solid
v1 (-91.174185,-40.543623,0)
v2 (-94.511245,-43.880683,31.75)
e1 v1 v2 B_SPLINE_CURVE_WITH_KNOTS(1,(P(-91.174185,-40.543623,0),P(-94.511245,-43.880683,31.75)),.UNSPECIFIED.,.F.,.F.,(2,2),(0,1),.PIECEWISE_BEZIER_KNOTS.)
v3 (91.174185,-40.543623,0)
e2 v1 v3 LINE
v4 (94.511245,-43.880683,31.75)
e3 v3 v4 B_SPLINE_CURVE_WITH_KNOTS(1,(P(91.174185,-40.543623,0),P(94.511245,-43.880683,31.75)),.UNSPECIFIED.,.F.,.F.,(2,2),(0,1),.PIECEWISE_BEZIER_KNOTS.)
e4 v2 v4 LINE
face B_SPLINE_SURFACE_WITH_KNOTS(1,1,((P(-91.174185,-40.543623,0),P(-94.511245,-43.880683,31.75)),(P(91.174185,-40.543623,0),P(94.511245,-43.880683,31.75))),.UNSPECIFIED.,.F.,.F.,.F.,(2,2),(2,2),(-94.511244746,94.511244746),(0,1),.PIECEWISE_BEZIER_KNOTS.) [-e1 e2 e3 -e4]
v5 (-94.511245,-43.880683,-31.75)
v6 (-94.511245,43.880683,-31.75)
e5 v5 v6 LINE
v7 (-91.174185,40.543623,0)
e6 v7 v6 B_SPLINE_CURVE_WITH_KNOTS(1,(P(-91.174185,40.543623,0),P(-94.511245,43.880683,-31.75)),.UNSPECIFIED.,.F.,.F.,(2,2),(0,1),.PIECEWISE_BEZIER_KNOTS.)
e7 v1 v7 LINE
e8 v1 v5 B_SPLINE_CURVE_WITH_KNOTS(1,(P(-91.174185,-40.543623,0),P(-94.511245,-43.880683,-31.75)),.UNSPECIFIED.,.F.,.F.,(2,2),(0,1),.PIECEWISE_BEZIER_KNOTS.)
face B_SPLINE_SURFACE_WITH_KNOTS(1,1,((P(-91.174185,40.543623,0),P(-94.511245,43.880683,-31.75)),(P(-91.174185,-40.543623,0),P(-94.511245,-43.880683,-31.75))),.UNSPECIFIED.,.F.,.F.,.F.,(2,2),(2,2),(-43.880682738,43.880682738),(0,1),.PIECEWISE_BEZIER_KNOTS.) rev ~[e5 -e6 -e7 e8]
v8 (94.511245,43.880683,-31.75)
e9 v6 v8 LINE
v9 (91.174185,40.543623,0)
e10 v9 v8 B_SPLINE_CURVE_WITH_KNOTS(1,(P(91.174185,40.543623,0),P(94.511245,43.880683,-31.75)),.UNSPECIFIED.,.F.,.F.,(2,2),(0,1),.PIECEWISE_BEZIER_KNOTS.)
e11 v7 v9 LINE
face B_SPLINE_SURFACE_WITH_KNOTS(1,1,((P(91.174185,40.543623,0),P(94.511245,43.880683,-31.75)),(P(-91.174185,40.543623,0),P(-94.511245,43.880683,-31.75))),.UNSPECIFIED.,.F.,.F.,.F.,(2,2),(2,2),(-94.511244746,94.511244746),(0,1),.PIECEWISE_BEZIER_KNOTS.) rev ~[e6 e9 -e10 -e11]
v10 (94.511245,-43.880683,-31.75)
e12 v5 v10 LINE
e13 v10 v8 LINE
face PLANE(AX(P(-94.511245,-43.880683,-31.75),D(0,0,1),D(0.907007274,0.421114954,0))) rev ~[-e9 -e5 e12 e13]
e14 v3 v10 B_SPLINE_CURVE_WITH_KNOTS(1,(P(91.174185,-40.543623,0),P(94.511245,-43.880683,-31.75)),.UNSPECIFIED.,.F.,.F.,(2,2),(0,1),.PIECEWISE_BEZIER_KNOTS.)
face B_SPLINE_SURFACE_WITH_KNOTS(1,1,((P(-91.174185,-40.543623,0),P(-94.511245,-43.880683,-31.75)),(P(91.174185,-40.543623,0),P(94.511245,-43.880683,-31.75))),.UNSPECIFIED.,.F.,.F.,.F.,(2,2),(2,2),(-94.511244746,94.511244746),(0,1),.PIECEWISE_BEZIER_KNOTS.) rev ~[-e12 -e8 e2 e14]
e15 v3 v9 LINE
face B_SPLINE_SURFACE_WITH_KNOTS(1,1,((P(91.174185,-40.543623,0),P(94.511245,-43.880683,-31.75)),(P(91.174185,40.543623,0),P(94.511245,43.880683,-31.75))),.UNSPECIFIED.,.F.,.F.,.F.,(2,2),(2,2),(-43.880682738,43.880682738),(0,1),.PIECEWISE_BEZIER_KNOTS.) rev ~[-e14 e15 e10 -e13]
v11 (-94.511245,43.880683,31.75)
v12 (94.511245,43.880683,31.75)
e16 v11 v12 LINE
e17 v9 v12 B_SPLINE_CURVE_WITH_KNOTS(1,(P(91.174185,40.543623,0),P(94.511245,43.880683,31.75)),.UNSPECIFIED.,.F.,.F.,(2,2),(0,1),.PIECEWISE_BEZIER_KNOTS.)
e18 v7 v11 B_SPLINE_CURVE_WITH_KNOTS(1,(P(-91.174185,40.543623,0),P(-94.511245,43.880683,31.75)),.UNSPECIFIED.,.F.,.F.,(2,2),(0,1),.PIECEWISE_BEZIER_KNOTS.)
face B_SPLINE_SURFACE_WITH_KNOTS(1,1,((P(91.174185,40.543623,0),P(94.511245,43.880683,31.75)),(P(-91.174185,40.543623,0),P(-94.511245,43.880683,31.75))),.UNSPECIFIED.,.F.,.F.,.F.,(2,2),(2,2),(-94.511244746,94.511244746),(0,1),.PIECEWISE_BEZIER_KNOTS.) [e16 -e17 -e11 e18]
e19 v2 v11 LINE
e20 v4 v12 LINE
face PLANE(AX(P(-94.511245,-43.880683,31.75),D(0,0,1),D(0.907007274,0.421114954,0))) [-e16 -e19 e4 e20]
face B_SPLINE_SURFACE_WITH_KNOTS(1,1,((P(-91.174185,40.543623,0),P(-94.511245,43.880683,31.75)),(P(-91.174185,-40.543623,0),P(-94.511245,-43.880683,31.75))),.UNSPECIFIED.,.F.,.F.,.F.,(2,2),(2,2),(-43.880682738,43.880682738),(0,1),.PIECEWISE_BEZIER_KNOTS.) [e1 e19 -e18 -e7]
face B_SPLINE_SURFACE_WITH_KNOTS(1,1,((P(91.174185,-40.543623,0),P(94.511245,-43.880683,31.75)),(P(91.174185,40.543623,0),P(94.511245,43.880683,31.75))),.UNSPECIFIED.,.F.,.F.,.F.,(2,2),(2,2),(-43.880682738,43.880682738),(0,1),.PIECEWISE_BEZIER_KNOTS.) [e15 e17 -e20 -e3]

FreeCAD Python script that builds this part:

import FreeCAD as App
import Part
import Sketcher

V = App.Vector
Q = App.Units.Quantity

doc = App.newDocument("Part")
body = doc.addObject("PartDesign::Body", "Body")

# Sketch on XY plane
sketch1 = doc.addObject("Sketcher::SketchObject", "Sketch")
body.addObject(sketch1)
sketch1.AttachmentSupport = (doc.XY_Plane, [""])
sketch1.MapMode = "FlatFace"
sketch1.addGeometry([
    Part.LineSegment(V(-91.174185, 40.543623, 0), V(-91.174185, -40.543623, 0)),
    Part.LineSegment(V(-91.174185, -40.543623, 0), V(91.174185, -40.543623, 0)),
    Part.LineSegment(V(91.174185, -40.543623, 0), V(91.174185, 40.543623, 0)),
    Part.LineSegment(V(91.174185, 40.543623, 0), V(-91.174185, 40.543623, 0)),
], False)
sketch1.addConstraint([
    Sketcher.Constraint("Coincident", 0, 2, 1, 1),
    Sketcher.Constraint("Coincident", 1, 2, 2, 1),
    Sketcher.Constraint("Coincident", 2, 2, 3, 1),
    Sketcher.Constraint("Coincident", 3, 2, 0, 1),
    Sketcher.Constraint("Vertical", 0),
    Sketcher.Constraint("Horizontal", 1),
    Sketcher.Constraint("Vertical", 2),
    Sketcher.Constraint("Horizontal", 3),
    Sketcher.Constraint("Symmetric", 0, 2, 2, 2, -1, 1),
    Sketcher.Constraint("DistanceX", 1, 1, 1, 2, 182.348371),
    Sketcher.Constraint("DistanceY", 0, 2, 0, 1, 81.087247),
])
pad1 = doc.addObject("PartDesign::Pad", "Pad")
body.addObject(pad1)
pad1.Profile = sketch1
pad1.Length = Q("2.5 in")
pad1.Midplane = True
pad1.TaperAngle = 6

doc.recompute()
